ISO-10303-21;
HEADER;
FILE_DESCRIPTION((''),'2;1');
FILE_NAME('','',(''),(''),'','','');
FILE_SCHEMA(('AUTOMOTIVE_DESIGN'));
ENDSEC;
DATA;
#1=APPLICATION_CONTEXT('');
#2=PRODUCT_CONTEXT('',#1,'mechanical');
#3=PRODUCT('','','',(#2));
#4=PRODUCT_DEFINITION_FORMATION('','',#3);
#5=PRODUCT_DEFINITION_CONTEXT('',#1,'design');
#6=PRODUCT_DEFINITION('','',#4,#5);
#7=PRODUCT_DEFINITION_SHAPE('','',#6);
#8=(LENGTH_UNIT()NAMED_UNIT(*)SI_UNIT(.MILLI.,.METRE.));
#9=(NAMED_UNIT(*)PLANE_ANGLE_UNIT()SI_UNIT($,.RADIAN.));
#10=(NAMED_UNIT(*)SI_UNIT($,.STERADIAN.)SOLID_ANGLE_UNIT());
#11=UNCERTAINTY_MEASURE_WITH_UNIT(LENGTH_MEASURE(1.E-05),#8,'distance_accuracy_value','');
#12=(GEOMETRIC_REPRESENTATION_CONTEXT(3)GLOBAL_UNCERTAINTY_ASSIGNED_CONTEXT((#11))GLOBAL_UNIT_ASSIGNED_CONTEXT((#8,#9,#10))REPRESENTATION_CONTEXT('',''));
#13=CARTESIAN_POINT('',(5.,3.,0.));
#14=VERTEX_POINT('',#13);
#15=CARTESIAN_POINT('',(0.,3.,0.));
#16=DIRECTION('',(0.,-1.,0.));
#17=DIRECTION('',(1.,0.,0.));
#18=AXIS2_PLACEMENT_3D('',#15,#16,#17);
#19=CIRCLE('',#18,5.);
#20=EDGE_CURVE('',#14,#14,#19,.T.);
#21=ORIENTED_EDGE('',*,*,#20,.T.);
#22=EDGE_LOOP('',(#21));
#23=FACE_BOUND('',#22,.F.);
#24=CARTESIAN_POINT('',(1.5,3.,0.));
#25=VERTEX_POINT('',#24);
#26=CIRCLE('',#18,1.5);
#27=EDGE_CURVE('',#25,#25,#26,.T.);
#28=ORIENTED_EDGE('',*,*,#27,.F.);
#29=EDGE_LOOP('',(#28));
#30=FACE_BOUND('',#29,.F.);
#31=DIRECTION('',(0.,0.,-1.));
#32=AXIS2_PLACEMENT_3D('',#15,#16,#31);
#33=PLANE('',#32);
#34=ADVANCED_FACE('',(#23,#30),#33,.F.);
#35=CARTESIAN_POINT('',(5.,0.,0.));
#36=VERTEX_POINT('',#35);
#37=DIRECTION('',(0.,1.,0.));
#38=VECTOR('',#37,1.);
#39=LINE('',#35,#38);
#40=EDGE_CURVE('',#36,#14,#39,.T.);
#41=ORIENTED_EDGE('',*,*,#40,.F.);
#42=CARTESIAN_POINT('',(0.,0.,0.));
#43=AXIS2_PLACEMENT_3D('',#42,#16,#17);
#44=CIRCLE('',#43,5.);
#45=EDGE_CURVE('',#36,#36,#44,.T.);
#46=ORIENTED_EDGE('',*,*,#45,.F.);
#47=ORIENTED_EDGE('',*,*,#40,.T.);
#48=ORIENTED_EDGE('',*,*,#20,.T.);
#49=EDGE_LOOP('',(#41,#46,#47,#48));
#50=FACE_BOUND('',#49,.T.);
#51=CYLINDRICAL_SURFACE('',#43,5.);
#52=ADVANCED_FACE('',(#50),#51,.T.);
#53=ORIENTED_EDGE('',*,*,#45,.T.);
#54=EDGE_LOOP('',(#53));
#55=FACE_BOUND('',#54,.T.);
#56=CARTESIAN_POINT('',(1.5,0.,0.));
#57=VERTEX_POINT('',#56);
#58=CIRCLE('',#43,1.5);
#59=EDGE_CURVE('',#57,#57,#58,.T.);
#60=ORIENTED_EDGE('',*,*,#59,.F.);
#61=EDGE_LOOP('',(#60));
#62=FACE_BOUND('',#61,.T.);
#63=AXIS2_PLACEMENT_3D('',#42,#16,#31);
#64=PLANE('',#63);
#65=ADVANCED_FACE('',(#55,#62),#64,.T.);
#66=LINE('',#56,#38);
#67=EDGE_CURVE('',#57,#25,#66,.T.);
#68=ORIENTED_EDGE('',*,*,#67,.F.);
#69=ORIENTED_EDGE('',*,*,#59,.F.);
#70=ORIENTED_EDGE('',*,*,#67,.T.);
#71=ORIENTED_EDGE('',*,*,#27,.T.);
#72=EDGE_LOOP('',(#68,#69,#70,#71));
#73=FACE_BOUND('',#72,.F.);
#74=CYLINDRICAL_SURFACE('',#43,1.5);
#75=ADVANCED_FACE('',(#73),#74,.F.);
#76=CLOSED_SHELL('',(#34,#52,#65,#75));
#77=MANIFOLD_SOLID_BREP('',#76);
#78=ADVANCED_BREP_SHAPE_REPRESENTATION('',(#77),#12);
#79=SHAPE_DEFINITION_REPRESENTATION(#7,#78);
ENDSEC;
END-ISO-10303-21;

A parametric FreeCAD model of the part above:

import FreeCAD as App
import Part
import Sketcher
from FreeCAD import Vector
Q = App.Units.Quantity

doc = App.newDocument("Part")
body = doc.addObject("PartDesign::Body", "Body")

sketch1 = doc.addObject("Sketcher::SketchObject", "Sketch")
body.addObject(sketch1)
sketch1.AttachmentSupport = (doc.XZ_Plane, [""])
sketch1.MapMode = "FlatFace"
sketch1.addGeometry([
    Part.Circle(Vector(0, 0, 0), Vector(0, 0, 1), 5),
    Part.Circle(Vector(0, 0, 0), Vector(0, 0, 1), 1.5),
], False)
sketch1.addConstraint([
    Sketcher.Constraint("Coincident", 0, 3, -1, 1),
    Sketcher.Constraint("Coincident", 1, 3, -1, 1),
    Sketcher.Constraint("Diameter", 0, Q("10 mm")),
    Sketcher.Constraint("Diameter", 1, Q("3 mm")),
])
pad1 = doc.addObject("PartDesign::Pad", "Pad")
body.addObject(pad1)
pad1.Profile = sketch1
pad1.Length = 3
pad1.Reversed = True

doc.recompute()
